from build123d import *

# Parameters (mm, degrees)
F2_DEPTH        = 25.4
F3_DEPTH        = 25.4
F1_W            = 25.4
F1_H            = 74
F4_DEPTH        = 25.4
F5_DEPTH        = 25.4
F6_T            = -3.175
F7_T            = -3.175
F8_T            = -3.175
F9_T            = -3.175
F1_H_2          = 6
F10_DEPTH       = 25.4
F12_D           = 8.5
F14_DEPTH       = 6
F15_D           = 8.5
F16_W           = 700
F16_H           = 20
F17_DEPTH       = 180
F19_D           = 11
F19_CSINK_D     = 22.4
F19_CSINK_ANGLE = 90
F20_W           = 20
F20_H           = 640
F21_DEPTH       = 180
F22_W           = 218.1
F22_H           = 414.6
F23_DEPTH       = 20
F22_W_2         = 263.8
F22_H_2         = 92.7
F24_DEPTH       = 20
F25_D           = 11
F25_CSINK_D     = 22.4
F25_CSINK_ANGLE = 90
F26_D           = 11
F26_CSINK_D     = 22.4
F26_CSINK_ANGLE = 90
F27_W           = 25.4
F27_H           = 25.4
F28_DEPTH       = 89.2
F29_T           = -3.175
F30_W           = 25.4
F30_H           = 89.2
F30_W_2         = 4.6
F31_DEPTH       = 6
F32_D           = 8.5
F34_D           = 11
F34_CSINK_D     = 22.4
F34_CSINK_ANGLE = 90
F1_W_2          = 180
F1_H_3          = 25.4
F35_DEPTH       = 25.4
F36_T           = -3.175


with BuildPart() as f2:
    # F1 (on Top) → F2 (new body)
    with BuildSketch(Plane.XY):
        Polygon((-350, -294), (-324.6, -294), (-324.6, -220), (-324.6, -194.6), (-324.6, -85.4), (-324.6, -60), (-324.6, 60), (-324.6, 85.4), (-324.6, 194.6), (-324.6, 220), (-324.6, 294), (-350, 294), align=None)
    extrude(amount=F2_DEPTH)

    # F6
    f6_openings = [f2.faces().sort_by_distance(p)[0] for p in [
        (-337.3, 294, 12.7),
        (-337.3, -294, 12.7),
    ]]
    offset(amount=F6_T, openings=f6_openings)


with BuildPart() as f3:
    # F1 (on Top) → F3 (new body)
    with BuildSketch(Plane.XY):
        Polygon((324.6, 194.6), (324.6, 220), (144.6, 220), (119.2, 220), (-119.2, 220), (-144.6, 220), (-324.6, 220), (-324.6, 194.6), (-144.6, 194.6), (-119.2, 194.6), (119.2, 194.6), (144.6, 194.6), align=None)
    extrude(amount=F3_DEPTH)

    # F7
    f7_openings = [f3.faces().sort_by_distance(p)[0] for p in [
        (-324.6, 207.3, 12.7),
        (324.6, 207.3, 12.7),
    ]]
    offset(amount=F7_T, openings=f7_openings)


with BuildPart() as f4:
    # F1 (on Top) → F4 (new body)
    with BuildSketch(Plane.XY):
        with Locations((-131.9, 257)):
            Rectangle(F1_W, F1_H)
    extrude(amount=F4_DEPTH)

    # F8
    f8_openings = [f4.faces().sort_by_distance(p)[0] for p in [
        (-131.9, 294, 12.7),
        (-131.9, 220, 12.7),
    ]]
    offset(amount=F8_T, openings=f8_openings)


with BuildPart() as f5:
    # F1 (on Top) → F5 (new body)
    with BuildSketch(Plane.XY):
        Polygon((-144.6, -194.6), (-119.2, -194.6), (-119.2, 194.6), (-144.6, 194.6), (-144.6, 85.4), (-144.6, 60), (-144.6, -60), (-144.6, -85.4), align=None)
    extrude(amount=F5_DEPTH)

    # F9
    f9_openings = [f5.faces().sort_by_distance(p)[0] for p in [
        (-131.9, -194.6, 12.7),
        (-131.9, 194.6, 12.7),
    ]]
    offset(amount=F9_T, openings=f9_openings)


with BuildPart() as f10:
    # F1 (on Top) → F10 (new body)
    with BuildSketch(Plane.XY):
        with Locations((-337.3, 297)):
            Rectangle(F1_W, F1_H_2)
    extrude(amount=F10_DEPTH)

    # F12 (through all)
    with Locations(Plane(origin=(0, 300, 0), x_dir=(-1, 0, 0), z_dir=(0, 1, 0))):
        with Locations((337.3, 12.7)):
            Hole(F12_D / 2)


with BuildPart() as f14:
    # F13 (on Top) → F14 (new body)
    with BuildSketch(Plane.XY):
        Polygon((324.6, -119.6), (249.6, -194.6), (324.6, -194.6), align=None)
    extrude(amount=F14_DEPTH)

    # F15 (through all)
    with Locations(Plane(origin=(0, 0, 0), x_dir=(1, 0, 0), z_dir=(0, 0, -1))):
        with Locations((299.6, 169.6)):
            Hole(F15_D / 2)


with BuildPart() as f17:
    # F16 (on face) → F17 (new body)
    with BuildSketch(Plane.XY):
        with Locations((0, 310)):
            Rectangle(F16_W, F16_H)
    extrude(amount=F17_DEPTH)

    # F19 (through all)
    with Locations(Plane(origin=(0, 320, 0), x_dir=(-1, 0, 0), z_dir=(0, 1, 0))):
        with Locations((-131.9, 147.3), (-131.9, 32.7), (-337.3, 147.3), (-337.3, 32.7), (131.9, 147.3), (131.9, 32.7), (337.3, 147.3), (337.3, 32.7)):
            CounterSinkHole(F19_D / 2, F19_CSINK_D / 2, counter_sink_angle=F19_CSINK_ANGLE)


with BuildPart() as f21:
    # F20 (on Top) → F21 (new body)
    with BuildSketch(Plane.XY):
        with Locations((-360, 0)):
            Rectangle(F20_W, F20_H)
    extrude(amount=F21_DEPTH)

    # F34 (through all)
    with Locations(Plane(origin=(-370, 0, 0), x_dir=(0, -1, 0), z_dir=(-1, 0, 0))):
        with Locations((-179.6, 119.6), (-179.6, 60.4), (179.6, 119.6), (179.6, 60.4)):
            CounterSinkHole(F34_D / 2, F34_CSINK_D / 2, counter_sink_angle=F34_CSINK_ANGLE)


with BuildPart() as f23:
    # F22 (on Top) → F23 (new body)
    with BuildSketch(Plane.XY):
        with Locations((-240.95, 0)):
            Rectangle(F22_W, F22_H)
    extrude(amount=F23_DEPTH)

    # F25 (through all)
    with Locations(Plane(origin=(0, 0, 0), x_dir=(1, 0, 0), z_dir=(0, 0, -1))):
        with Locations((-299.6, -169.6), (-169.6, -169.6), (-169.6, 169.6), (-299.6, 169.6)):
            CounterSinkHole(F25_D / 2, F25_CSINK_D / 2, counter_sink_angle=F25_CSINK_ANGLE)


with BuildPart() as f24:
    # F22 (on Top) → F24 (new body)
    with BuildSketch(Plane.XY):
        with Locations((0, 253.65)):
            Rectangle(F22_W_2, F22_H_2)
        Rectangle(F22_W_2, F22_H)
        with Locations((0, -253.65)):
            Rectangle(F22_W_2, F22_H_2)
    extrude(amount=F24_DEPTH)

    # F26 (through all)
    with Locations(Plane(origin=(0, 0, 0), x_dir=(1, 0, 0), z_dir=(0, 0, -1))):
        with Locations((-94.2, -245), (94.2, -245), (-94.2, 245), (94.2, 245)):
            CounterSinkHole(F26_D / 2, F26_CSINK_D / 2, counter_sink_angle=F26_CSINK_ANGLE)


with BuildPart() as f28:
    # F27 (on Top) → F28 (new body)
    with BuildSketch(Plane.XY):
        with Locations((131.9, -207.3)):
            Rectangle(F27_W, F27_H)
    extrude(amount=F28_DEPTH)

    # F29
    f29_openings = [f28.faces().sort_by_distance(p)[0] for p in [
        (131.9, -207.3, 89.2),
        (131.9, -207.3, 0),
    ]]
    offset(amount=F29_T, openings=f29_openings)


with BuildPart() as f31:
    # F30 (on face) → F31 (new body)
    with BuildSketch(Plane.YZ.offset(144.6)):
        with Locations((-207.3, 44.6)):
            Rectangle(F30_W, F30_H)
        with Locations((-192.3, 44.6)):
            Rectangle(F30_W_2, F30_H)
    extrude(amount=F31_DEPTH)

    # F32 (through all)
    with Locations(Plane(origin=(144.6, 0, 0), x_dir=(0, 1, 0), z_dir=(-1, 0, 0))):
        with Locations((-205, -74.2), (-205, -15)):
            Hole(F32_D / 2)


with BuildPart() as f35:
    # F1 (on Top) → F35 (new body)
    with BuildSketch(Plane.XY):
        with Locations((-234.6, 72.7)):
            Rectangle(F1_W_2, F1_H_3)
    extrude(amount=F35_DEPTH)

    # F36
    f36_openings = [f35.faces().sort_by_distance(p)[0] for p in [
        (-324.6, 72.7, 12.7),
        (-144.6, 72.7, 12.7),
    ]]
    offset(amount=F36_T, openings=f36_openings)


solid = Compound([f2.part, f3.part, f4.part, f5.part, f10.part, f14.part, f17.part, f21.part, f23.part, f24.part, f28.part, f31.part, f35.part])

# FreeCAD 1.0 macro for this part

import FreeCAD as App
import Part
import Sketcher

V = App.Vector
Q = App.Units.Quantity


def faces_at(feature, points):
    """Names of the faces that lie closest to the given points."""
    faces = feature.Shape.Faces
    near = lambda p: min(range(len(faces)), key=lambda i: faces[i].distToShape(Part.Vertex(*p))[0])
    return sorted({f"Face{near(p) + 1}" for p in points})

doc = App.newDocument("Part")
params = doc.addObject("Spreadsheet::Sheet", "Params")
for row, (alias, value) in enumerate([
    ("sketch1_height", "588 mm"),
    ("sketch1_width", "25.4 mm"),
    ("pad1_length", "25.4 mm"),
    ("thickness_wall", "3.175 mm"),
    ("sketch2_width", "649.2 mm"),
    ("sketch2_height", "25.4 mm"),
    ("pad2_length", "25.4 mm"),
    ("thickness2_wall", "3.175 mm"),
    ("sketch3_height", "74 mm"),
    ("sketch3_width", "25.4 mm"),
    ("pad3_length", "25.4 mm"),
    ("thickness3_wall", "3.175 mm"),
    ("sketch4_width", "25.4 mm"),
    ("sketch4_height", "389.2 mm"),
    ("pad4_length", "25.4 mm"),
    ("thickness4_wall", "3.175 mm"),
    ("sketch5_height", "6 mm"),
    ("sketch5_width", "25.4 mm"),
    ("pad5_length", "25.4 mm"),
    ("sketch6_diameter", "8.5 mm"),
    ("hole_diameter", "8.5 mm"),
    ("sketch7_width", "75 mm"),
    ("pad6_length", "6 mm"),
    ("sketch8_diameter", "8.5 mm"),
    ("hole2_diameter", "8.5 mm"),
    ("sketch9_width", "700 mm"),
    ("sketch9_height", "20 mm"),
    ("pad7_length", "180 mm"),
    ("sketch10_diameter", "11 mm"),
    ("hole3_diameter", "11 mm"),
    ("hole3_csink_diameter", "22.4 mm"),
    ("sketch11_width", "20 mm"),
    ("sketch11_height", "640 mm"),
    ("pad8_length", "180 mm"),
    ("sketch12_diameter", "11 mm"),
    ("hole4_diameter", "11 mm"),
    ("hole4_csink_diameter", "22.4 mm"),
    ("sketch13_width", "218.1 mm"),
    ("sketch13_height", "414.6 mm"),
    ("pad9_length", "20 mm"),
    ("sketch14_diameter", "11 mm"),
    ("hole5_diameter", "11 mm"),
    ("hole5_csink_diameter", "22.4 mm"),
    ("sketch15_height", "600 mm"),
    ("sketch15_width", "263.8 mm"),
    ("pad10_length", "20 mm"),
    ("sketch16_diameter", "11 mm"),
    ("hole6_diameter", "11 mm"),
    ("hole6_csink_diameter", "22.4 mm"),
    ("sketch17_width", "25.4 mm"),
    ("pad11_length", "89.2 mm"),
    ("thickness5_wall", "3.175 mm"),
    ("sketch18_width", "30 mm"),
    ("sketch18_height", "89.2 mm"),
    ("pad12_length", "6 mm"),
    ("sketch19_diameter", "8.5 mm"),
    ("hole7_diameter", "8.5 mm"),
    ("sketch20_width", "180 mm"),
    ("sketch20_height", "25.4 mm"),
    ("pad13_length", "25.4 mm"),
    ("thickness6_wall", "3.175 mm"),
], start=1):
    params.set(f"A{row}", alias)
    params.set(f"B{row}", "=" + value)
    params.setAlias(f"B{row}", alias)

body = doc.addObject("PartDesign::Body", "Body")

sketch1 = body.newObject("Sketcher::SketchObject", "Sketch")
sketch1.AttachmentSupport = (doc.getObject("XY_Plane"), [""])
sketch1.MapMode = "FlatFace"
sketch1.addGeometry([
    Part.LineSegment(V(-350, -294, 0), V(-325, -294, 0)),
    Part.LineSegment(V(-325, -294, 0), V(-325, 294, 0)),
    Part.LineSegment(V(-325, 294, 0), V(-350, 294, 0)),
    Part.LineSegment(V(-350, 294, 0), V(-350, -294, 0)),
], False)
sketch1.addConstraint([
    Sketcher.Constraint("Coincident", 0, 2, 1, 1),
    Sketcher.Constraint("Coincident", 1, 2, 2, 1),
    Sketcher.Constraint("Coincident", 2, 2, 3, 1),
    Sketcher.Constraint("Coincident", 3, 2, 0, 1),
    Sketcher.Constraint("Horizontal", 0),
    Sketcher.Constraint("Vertical", 1),
    Sketcher.Constraint("Horizontal", 2),
    Sketcher.Constraint("Vertical", 3),
    Sketcher.Constraint("DistanceY", 1, 1, 1, 2, Q("588 mm")),
    Sketcher.Constraint("DistanceX", 0, 1, 0, 2, Q("25.4 mm")),
    Sketcher.Constraint("DistanceY", 0, 2, -1, 1, Q("294 mm")),
    Sketcher.Constraint("DistanceX", 2, 2, -1, 1, Q("350 mm")),
])
sketch1.setExpression("Constraints[8]", "Params.sketch1_height")
sketch1.setExpression("Constraints[9]", "Params.sketch1_width")
pad1 = body.newObject("PartDesign::Pad", "Pad")
pad1.Profile = sketch1
pad1.setExpression("Length", "Params.pad1_length")
doc.recompute()

thickness = body.newObject("PartDesign::Thickness", "Thickness")
thickness.Base = (pad1, faces_at(pad1, [(-337.3, 294, 12.7), (-337.3, -294, 12.7)]))
thickness.setExpression("Value", "Params.thickness_wall")
thickness.Reversed = True
thickness.Join = "Arc"
body2 = doc.addObject("PartDesign::Body", "Body001")

sketch2 = body2.newObject("Sketcher::SketchObject", "Sketch001")
sketch2.AttachmentSupport = (doc.getObject("XY_Plane001"), [""])
sketch2.MapMode = "FlatFace"
sketch2.addGeometry([
    Part.LineSegment(V(325, 195, 0), V(325, 220, 0)),
    Part.LineSegment(V(325, 220, 0), V(-325, 220, 0)),
    Part.LineSegment(V(-325, 220, 0), V(-325, 195, 0)),
    Part.LineSegment(V(-325, 195, 0), V(325, 195, 0)),
], False)
sketch2.addConstraint([
    Sketcher.Constraint("Coincident", 0, 2, 1, 1),
    Sketcher.Constraint("Coincident", 1, 2, 2, 1),
    Sketcher.Constraint("Coincident", 2, 2, 3, 1),
    Sketcher.Constraint("Coincident", 3, 2, 0, 1),
    Sketcher.Constraint("Vertical", 0),
    Sketcher.Constraint("Horizontal", 1),
    Sketcher.Constraint("Vertical", 2),
    Sketcher.Constraint("Horizontal", 3),
    Sketcher.Constraint("DistanceX", 1, 2, 1, 1, Q("649.2 mm")),
    Sketcher.Constraint("DistanceY", 0, 1, 0, 2, Q("25.4 mm")),
    Sketcher.Constraint("DistanceY", -1, 1, 0, 2, Q("220 mm")),
    Sketcher.Constraint("DistanceX", -1, 1, 0, 2, Q("324.6 mm")),
])
sketch2.setExpression("Constraints[8]", "Params.sketch2_width")
sketch2.setExpression("Constraints[9]", "Params.sketch2_height")
pad2 = body2.newObject("PartDesign::Pad", "Pad001")
pad2.Profile = sketch2
pad2.setExpression("Length", "Params.pad2_length")
doc.recompute()

thickness2 = body2.newObject("PartDesign::Thickness", "Thickness001")
thickness2.Base = (pad2, faces_at(pad2, [(-324.6, 207.3, 12.7), (324.6, 207.3, 12.7)]))
thickness2.setExpression("Value", "Params.thickness2_wall")
thickness2.Reversed = True
thickness2.Join = "Arc"
body3 = doc.addObject("PartDesign::Body", "Body002")

sketch3 = body3.newObject("Sketcher::SketchObject", "Sketch002")
sketch3.AttachmentSupport = (doc.getObject("XY_Plane002"), [""])
sketch3.MapMode = "FlatFace"
sketch3.addGeometry([
    Part.LineSegment(V(-145, 294, 0), V(-145, 220, 0)),
    Part.LineSegment(V(-145, 220, 0), V(-119, 220, 0)),
    Part.LineSegment(V(-119, 220, 0), V(-119, 294, 0)),
    Part.LineSegment(V(-119, 294, 0), V(-145, 294, 0)),
], False)
sketch3.addConstraint([
    Sketcher.Constraint("Coincident", 0, 2, 1, 1),
    Sketcher.Constraint("Coincident", 1, 2, 2, 1),
    Sketcher.Constraint("Coincident", 2, 2, 3, 1),
    Sketcher.Constraint("Coincident", 3, 2, 0, 1),
    Sketcher.Constraint("Vertical", 0),
    Sketcher.Constraint("Horizontal", 1),
    Sketcher.Constraint("Vertical", 2),
    Sketcher.Constraint("Horizontal", 3),
    Sketcher.Constraint("DistanceY", 0, 2, 0, 1, Q("74 mm")),
    Sketcher.Constraint("DistanceX", 1, 1, 1, 2, Q("25.4 mm")),
    Sketcher.Constraint("DistanceY", -1, 1, 0, 2, Q("220 mm")),
    Sketcher.Constraint("DistanceX", 0, 2, -1, 1, Q("144.6 mm")),
])
sketch3.setExpression("Constraints[8]", "Params.sketch3_height")
sketch3.setExpression("Constraints[9]", "Params.sketch3_width")
pad3 = body3.newObject("PartDesign::Pad", "Pad002")
pad3.Profile = sketch3
pad3.setExpression("Length", "Params.pad3_length")
doc.recompute()

thickness3 = body3.newObject("PartDesign::Thickness", "Thickness002")
thickness3.Base = (pad3, faces_at(pad3, [(-131.9, 294, 12.7), (-131.9, 220, 12.7)]))
thickness3.setExpression("Value", "Params.thickness3_wall")
thickness3.Reversed = True
thickness3.Join = "Arc"
body4 = doc.addObject("PartDesign::Body", "Body003")

sketch4 = body4.newObject("Sketcher::SketchObject", "Sketch003")
sketch4.AttachmentSupport = (doc.getObject("XY_Plane003"), [""])
sketch4.MapMode = "FlatFace"
sketch4.addGeometry([
    Part.LineSegment(V(-145, -195, 0), V(-119, -195, 0)),
    Part.LineSegment(V(-119, -195, 0), V(-119, 195, 0)),
    Part.LineSegment(V(-119, 195, 0), V(-145, 195, 0)),
    Part.LineSegment(V(-145, 195, 0), V(-145, -195, 0)),
], False)
sketch4.addConstraint([
    Sketcher.Constraint("Coincident", 0, 2, 1, 1),
    Sketcher.Constraint("Coincident", 1, 2, 2, 1),
    Sketcher.Constraint("Coincident", 2, 2, 3, 1),
    Sketcher.Constraint("Coincident", 3, 2, 0, 1),
    Sketcher.Constraint("Horizontal", 0),
    Sketcher.Constraint("Vertical", 1),
    Sketcher.Constraint("Horizontal", 2),
    Sketcher.Constraint("Vertical", 3),
    Sketcher.Constraint("DistanceX", 0, 1, 0, 2, Q("25.4 mm")),
    Sketcher.Constraint("DistanceY", 1, 1, 1, 2, Q("389.2 mm")),
    Sketcher.Constraint("DistanceX", 0, 2, -1, 1, Q("119.2 mm")),
    Sketcher.Constraint("DistanceY", 0, 2, -1, 1, Q("194.6 mm")),
])
sketch4.setExpression("Constraints[8]", "Params.sketch4_width")
sketch4.setExpression("Constraints[9]", "Params.sketch4_height")
pad4 = body4.newObject("PartDesign::Pad", "Pad003")
pad4.Profile = sketch4
pad4.setExpression("Length", "Params.pad4_length")
doc.recompute()

thickness4 = body4.newObject("PartDesign::Thickness", "Thickness003")
thickness4.Base = (pad4, faces_at(pad4, [(-131.9, -194.6, 12.7), (-131.9, 194.6, 12.7)]))
thickness4.setExpression("Value", "Params.thickness4_wall")
thickness4.Reversed = True
thickness4.Join = "Arc"
body5 = doc.addObject("PartDesign::Body", "Body004")

sketch5 = body5.newObject("Sketcher::SketchObject", "Sketch004")
sketch5.AttachmentSupport = (doc.getObject("XY_Plane004"), [""])
sketch5.MapMode = "FlatFace"
sketch5.addGeometry([
    Part.LineSegment(V(-350, 300, 0), V(-350, 294, 0)),
    Part.LineSegment(V(-350, 294, 0), V(-325, 294, 0)),
    Part.LineSegment(V(-325, 294, 0), V(-325, 300, 0)),
    Part.LineSegment(V(-325, 300, 0), V(-350, 300, 0)),
], False)
sketch5.addConstraint([
    Sketcher.Constraint("Coincident", 0, 2, 1, 1),
    Sketcher.Constraint("Coincident", 1, 2, 2, 1),
    Sketcher.Constraint("Coincident", 2, 2, 3, 1),
    Sketcher.Constraint("Coincident", 3, 2, 0, 1),
    Sketcher.Constraint("Vertical", 0),
    Sketcher.Constraint("Horizontal", 1),
    Sketcher.Constraint("Vertical", 2),
    Sketcher.Constraint("Horizontal", 3),
    Sketcher.Constraint("DistanceY", 0, 2, 0, 1, Q("6 mm")),
    Sketcher.Constraint("DistanceX", 1, 1, 1, 2, Q("25.4 mm")),
    Sketcher.Constraint("DistanceX", 0, 2, -1, 1, Q("350 mm")),
    Sketcher.Constraint("DistanceY", -1, 1, 0, 2, Q("294 mm")),
])
sketch5.setExpression("Constraints[8]", "Params.sketch5_height")
sketch5.setExpression("Constraints[9]", "Params.sketch5_width")
pad5 = body5.newObject("PartDesign::Pad", "Pad004")
pad5.Profile = sketch5
pad5.setExpression("Length", "Params.pad5_length")

sketch6 = body5.newObject("Sketcher::SketchObject", "Sketch005")
sketch6.AttachmentSupport = (doc.getObject("XZ_Plane004"), [""])
sketch6.MapMode = "FlatFace"
sketch6.AttachmentOffset = App.Placement(V(0, 0, -300), App.Rotation())
sketch6.addGeometry(Part.Circle(V(-337.3, 12.7, 0), V(0, 0, 1), 4.2), False)
sketch6.addConstraint([
    Sketcher.Constraint("Diameter", 0, Q("8.5 mm")),
    Sketcher.Constraint("DistanceX", 0, 3, -1, 1, Q("337.3 mm")),
    Sketcher.Constraint("DistanceY", -1, 1, 0, 3, Q("12.7 mm")),
])
sketch6.setExpression("Constraints[0]", "Params.sketch6_diameter")
doc.recompute()
hole = body5.newObject("PartDesign::Hole", "Hole")
hole.Profile = sketch6
hole.ThreadType = "None"
hole.setExpression("Diameter", "Params.hole_diameter")
hole.DepthType = "ThroughAll"
hole.Reversed = True
body6 = doc.addObject("PartDesign::Body", "Body005")

sketch7 = body6.newObject("Sketcher::SketchObject", "Sketch006")
sketch7.AttachmentSupport = (doc.getObject("XY_Plane005"), [""])
sketch7.MapMode = "FlatFace"
sketch7.addGeometry([
    Part.LineSegment(V(325, -120, 0), V(250, -195, 0)),
    Part.LineSegment(V(250, -195, 0), V(325, -195, 0)),
    Part.LineSegment(V(325, -195, 0), V(325, -120, 0)),
], False)
sketch7.addConstraint([
    Sketcher.Constraint("Coincident", 0, 2, 1, 1),
    Sketcher.Constraint("Coincident", 1, 2, 2, 1),
    Sketcher.Constraint("Coincident", 2, 2, 0, 1),
    Sketcher.Constraint("Horizontal", 1),
    Sketcher.Constraint("Vertical", 2),
    Sketcher.Constraint("Equal", 1, 2),
    Sketcher.Constraint("DistanceX", 1, 1, 1, 2, Q("75 mm")),
    Sketcher.Constraint("DistanceX", -1, 1, 0, 2, Q("249.6 mm")),
    Sketcher.Constraint("DistanceY", 0, 2, -1, 1, Q("194.6 mm")),
])
sketch7.setExpression("Constraints[6]", "Params.sketch7_width")
pad6 = body6.newObject("PartDesign::Pad", "Pad005")
pad6.Profile = sketch7
pad6.setExpression("Length", "Params.pad6_length")

sketch8 = body6.newObject("Sketcher::SketchObject", "Sketch007")
sketch8.AttachmentSupport = (doc.getObject("XY_Plane005"), [""])
sketch8.MapMode = "FlatFace"
sketch8.addGeometry(Part.Circle(V(299.6, -169.6, 0), V(0, 0, 1), 4.2), False)
sketch8.addConstraint([
    Sketcher.Constraint("Diameter", 0, Q("8.5 mm")),
    Sketcher.Constraint("DistanceX", -1, 1, 0, 3, Q("299.6 mm")),
    Sketcher.Constraint("DistanceY", 0, 3, -1, 1, Q("169.6 mm")),
])
sketch8.setExpression("Constraints[0]", "Params.sketch8_diameter")
doc.recompute()
hole2 = body6.newObject("PartDesign::Hole", "Hole001")
hole2.Profile = sketch8
hole2.ThreadType = "None"
hole2.setExpression("Diameter", "Params.hole2_diameter")
hole2.DepthType = "ThroughAll"
hole2.Reversed = True
body7 = doc.addObject("PartDesign::Body", "Body006")

sketch9 = body7.newObject("Sketcher::SketchObject", "Sketch008")
sketch9.AttachmentSupport = (doc.getObject("XY_Plane006"), [""])
sketch9.MapMode = "FlatFace"
sketch9.addGeometry([
    Part.LineSegment(V(-350, 320, 0), V(-350, 300, 0)),
    Part.LineSegment(V(-350, 300, 0), V(350, 300, 0)),
    Part.LineSegment(V(350, 300, 0), V(350, 320, 0)),
    Part.LineSegment(V(350, 320, 0), V(-350, 320, 0)),
], False)
sketch9.addConstraint([
    Sketcher.Constraint("Coincident", 0, 2, 1, 1),
    Sketcher.Constraint("Coincident", 1, 2, 2, 1),
    Sketcher.Constraint("Coincident", 2, 2, 3, 1),
    Sketcher.Constraint("Coincident", 3, 2, 0, 1),
    Sketcher.Constraint("Vertical", 0),
    Sketcher.Constraint("Horizontal", 1),
    Sketcher.Constraint("Vertical", 2),
    Sketcher.Constraint("Horizontal", 3),
    Sketcher.Constraint("DistanceX", 1, 1, 1, 2, Q("700 mm")),
    Sketcher.Constraint("DistanceY", 0, 2, 0, 1, Q("20 mm")),
    Sketcher.Constraint("DistanceX", 0, 2, -1, 1, Q("350 mm")),
    Sketcher.Constraint("DistanceY", -1, 1, 0, 2, Q("300 mm")),
])
sketch9.setExpression("Constraints[8]", "Params.sketch9_width")
sketch9.setExpression("Constraints[9]", "Params.sketch9_height")
pad7 = body7.newObject("PartDesign::Pad", "Pad006")
pad7.Profile = sketch9
pad7.setExpression("Length", "Params.pad7_length")

sketch10 = body7.newObject("Sketcher::SketchObject", "Sketch009")
sketch10.AttachmentSupport = (doc.getObject("XZ_Plane006"), [""])
sketch10.MapMode = "FlatFace"
sketch10.AttachmentOffset = App.Placement(V(0, 0, -320), App.Rotation())
sketch10.addGeometry([
    Part.Circle(V(132, 147, 0), V(0, 0, 1), 6),
    Part.Circle(V(132, 33, 0), V(0, 0, 1), 6),
    Part.Circle(V(337, 147, 0), V(0, 0, 1), 6),
    Part.Circle(V(337, 33, 0), V(0, 0, 1), 6),
    Part.Circle(V(-132, 147, 0), V(0, 0, 1), 6),
    Part.Circle(V(-132, 33, 0), V(0, 0, 1), 6),
    Part.Circle(V(-337, 147, 0), V(0, 0, 1), 6),
    Part.Circle(V(-337, 33, 0), V(0, 0, 1), 6),
], False)
sketch10.addConstraint([
    Sketcher.Constraint("Equal", 0, 1),
    Sketcher.Constraint("Equal", 1, 2),
    Sketcher.Constraint("Equal", 2, 3),
    Sketcher.Constraint("Equal", 3, 4),
    Sketcher.Constraint("Equal", 4, 5),
    Sketcher.Constraint("Equal", 5, 6),
    Sketcher.Constraint("Equal", 6, 7),
    Sketcher.Constraint("Symmetric", 0, 3, 4, 3, -2),
    Sketcher.Constraint("Symmetric", 1, 3, 5, 3, -2),
    Sketcher.Constraint("Symmetric", 2, 3, 6, 3, -2),
    Sketcher.Constraint("Symmetric", 3, 3, 7, 3, -2),
    Sketcher.Constraint("Horizontal", 0, 3, 2, 3),
    Sketcher.Constraint("Horizontal", 1, 3, 3, 3),
    Sketcher.Constraint("Vertical", 0, 3, 1, 3),
    Sketcher.Constraint("Vertical", 2, 3, 3, 3),
    Sketcher.Constraint("Diameter", 0, Q("11 mm")),
    Sketcher.Constraint("DistanceX", -1, 1, 0, 3, Q("131.9 mm")),
    Sketcher.Constraint("DistanceY", -1, 1, 0, 3, Q("147.3 mm")),
    Sketcher.Constraint("DistanceY", -1, 1, 1, 3, Q("32.7 mm")),
    Sketcher.Constraint("DistanceX", -1, 1, 2, 3, Q("337.3 mm")),
])
sketch10.setExpression("Constraints[15]", "Params.sketch10_diameter")
doc.recompute()
hole3 = body7.newObject("PartDesign::Hole", "Hole002")
hole3.Profile = sketch10
hole3.ThreadType = "None"
hole3.setExpression("Diameter", "Params.hole3_diameter")
hole3.DepthType = "ThroughAll"
hole3.HoleCutType = "Countersink"
hole3.setExpression("HoleCutDiameter", "Params.hole3_csink_diameter")
hole3.HoleCutCountersinkAngle = 90
hole3.Reversed = True
body8 = doc.addObject("PartDesign::Body", "Body007")

sketch11 = body8.newObject("Sketcher::SketchObject", "Sketch010")
sketch11.AttachmentSupport = (doc.getObject("XY_Plane007"), [""])
sketch11.MapMode = "FlatFace"
sketch11.addGeometry([
    Part.LineSegment(V(-370, 320, 0), V(-370, -320, 0)),
    Part.LineSegment(V(-370, -320, 0), V(-350, -320, 0)),
    Part.LineSegment(V(-350, -320, 0), V(-350, 320, 0)),
    Part.LineSegment(V(-350, 320, 0), V(-370, 320, 0)),
], False)
sketch11.addConstraint([
    Sketcher.Constraint("Coincident", 0, 2, 1, 1),
    Sketcher.Constraint("Coincident", 1, 2, 2, 1),
    Sketcher.Constraint("Coincident", 2, 2, 3, 1),
    Sketcher.Constraint("Coincident", 3, 2, 0, 1),
    Sketcher.Constraint("Vertical", 0),
    Sketcher.Constraint("Horizontal", 1),
    Sketcher.Constraint("Vertical", 2),
    Sketcher.Constraint("Horizontal", 3),
    Sketcher.Constraint("DistanceX", 1, 1, 1, 2, Q("20 mm")),
    Sketcher.Constraint("DistanceY", 0, 2, 0, 1, Q("640 mm")),
    Sketcher.Constraint("DistanceX", 0, 2, -1, 1, Q("370 mm")),
    Sketcher.Constraint("DistanceY", 0, 2, -1, 1, Q("320 mm")),
])
sketch11.setExpression("Constraints[8]", "Params.sketch11_width")
sketch11.setExpression("Constraints[9]", "Params.sketch11_height")
pad8 = body8.newObject("PartDesign::Pad", "Pad007")
pad8.Profile = sketch11
pad8.setExpression("Length", "Params.pad8_length")

sketch12 = body8.newObject("Sketcher::SketchObject", "Sketch011")
sketch12.AttachmentSupport = (doc.getObject("YZ_Plane007"), [""])
sketch12.MapMode = "FlatFace"
sketch12.AttachmentOffset = App.Placement(V(0, 0, -370), App.Rotation())
sketch12.addGeometry([
    Part.Circle(V(180, 120, 0), V(0, 0, 1), 6),
    Part.Circle(V(180, 60, 0), V(0, 0, 1), 6),
    Part.Circle(V(-180, 120, 0), V(0, 0, 1), 6),
    Part.Circle(V(-180, 60, 0), V(0, 0, 1), 6),
], False)
sketch12.addConstraint([
    Sketcher.Constraint("Equal", 0, 1),
    Sketcher.Constraint("Equal", 1, 2),
    Sketcher.Constraint("Equal", 2, 3),
    Sketcher.Constraint("Symmetric", 0, 3, 2, 3, -2),
    Sketcher.Constraint("Symmetric", 1, 3, 3, 3, -2),
    Sketcher.Constraint("Vertical", 0, 3, 1, 3),
    Sketcher.Constraint("Diameter", 0, Q("11 mm")),
    Sketcher.Constraint("DistanceX", -1, 1, 0, 3, Q("179.6 mm")),
    Sketcher.Constraint("DistanceY", -1, 1, 0, 3, Q("119.6 mm")),
    Sketcher.Constraint("DistanceY", -1, 1, 1, 3, Q("60.4 mm")),
])
sketch12.setExpression("Constraints[6]", "Params.sketch12_diameter")
doc.recompute()
hole4 = body8.newObject("PartDesign::Hole", "Hole003")
hole4.Profile = sketch12
hole4.ThreadType = "None"
hole4.setExpression("Diameter", "Params.hole4_diameter")
hole4.DepthType = "ThroughAll"
hole4.HoleCutType = "Countersink"
hole4.setExpression("HoleCutDiameter", "Params.hole4_csink_diameter")
hole4.HoleCutCountersinkAngle = 90
hole4.Reversed = True
body9 = doc.addObject("PartDesign::Body", "Body008")

sketch13 = body9.newObject("Sketcher::SketchObject", "Sketch012")
sketch13.AttachmentSupport = (doc.getObject("XY_Plane008"), [""])
sketch13.MapMode = "FlatFace"
sketch13.addGeometry([
    Part.LineSegment(V(-350, 207, 0), V(-350, -207, 0)),
    Part.LineSegment(V(-350, -207, 0), V(-132, -207, 0)),
    Part.LineSegment(V(-132, -207, 0), V(-132, 207, 0)),
    Part.LineSegment(V(-132, 207, 0), V(-350, 207, 0)),
], False)
sketch13.addConstraint([
    Sketcher.Constraint("Coincident", 0, 2, 1, 1),
    Sketcher.Constraint("Coincident", 1, 2, 2, 1),
    Sketcher.Constraint("Coincident", 2, 2, 3, 1),
    Sketcher.Constraint("Coincident", 3, 2, 0, 1),
    Sketcher.Constraint("Vertical", 0),
    Sketcher.Constraint("Horizontal", 1),
    Sketcher.Constraint("Vertical", 2),
    Sketcher.Constraint("Horizontal", 3),
    Sketcher.Constraint("DistanceX", 1, 1, 1, 2, Q("218.1 mm")),
    Sketcher.Constraint("DistanceY", 0, 2, 0, 1, Q("414.6 mm")),
    Sketcher.Constraint("DistanceX", 0, 2, -1, 1, Q("350 mm")),
    Sketcher.Constraint("DistanceY", 0, 2, -1, 1, Q("207.3 mm")),
])
sketch13.setExpression("Constraints[8]", "Params.sketch13_width")
sketch13.setExpression("Constraints[9]", "Params.sketch13_height")
pad9 = body9.newObject("PartDesign::Pad", "Pad008")
pad9.Profile = sketch13
pad9.setExpression("Length", "Params.pad9_length")

sketch14 = body9.newObject("Sketcher::SketchObject", "Sketch013")
sketch14.AttachmentSupport = (doc.getObject("XY_Plane008"), [""])
sketch14.MapMode = "FlatFace"
sketch14.addGeometry([
    Part.Circle(V(-300, 170, 0), V(0, 0, 1), 6),
    Part.Circle(V(-170, 170, 0), V(0, 0, 1), 6),
    Part.Circle(V(-170, -170, 0), V(0, 0, 1), 6),
    Part.Circle(V(-300, -170, 0), V(0, 0, 1), 6),
], False)
sketch14.addConstraint([
    Sketcher.Constraint("Equal", 0, 1),
    Sketcher.Constraint("Equal", 1, 2),
    Sketcher.Constraint("Equal", 2, 3),
    Sketcher.Constraint("Symmetric", 1, 3, 2, 3, -1),
    Sketcher.Constraint("Symmetric", 0, 3, 3, 3, -1),
    Sketcher.Constraint("Horizontal", 0, 3, 1, 3),
    Sketcher.Constraint("Diameter", 0, Q("11 mm")),
    Sketcher.Constraint("DistanceX", 0, 3, 1, 3, Q("130 mm")),
    Sketcher.Constraint("DistanceX", 0, 3, -1, 1, Q("299.6 mm")),
    Sketcher.Constraint("DistanceY", -1, 1, 0, 3, Q("169.6 mm")),
])
sketch14.setExpression("Constraints[6]", "Params.sketch14_diameter")
doc.recompute()
hole5 = body9.newObject("PartDesign::Hole", "Hole004")
hole5.Profile = sketch14
hole5.ThreadType = "None"
hole5.setExpression("Diameter", "Params.hole5_diameter")
hole5.DepthType = "ThroughAll"
hole5.HoleCutType = "Countersink"
hole5.setExpression("HoleCutDiameter", "Params.hole5_csink_diameter")
hole5.HoleCutCountersinkAngle = 90
hole5.Reversed = True
body10 = doc.addObject("PartDesign::Body", "Body009")

sketch15 = body10.newObject("Sketcher::SketchObject", "Sketch014")
sketch15.AttachmentSupport = (doc.getObject("XY_Plane009"), [""])
sketch15.MapMode = "FlatFace"
sketch15.addGeometry([
    Part.LineSegment(V(-132, 300, 0), V(-132, -300, 0)),
    Part.LineSegment(V(-132, -300, 0), V(132, -300, 0)),
    Part.LineSegment(V(132, -300, 0), V(132, 300, 0)),
    Part.LineSegment(V(132, 300, 0), V(-132, 300, 0)),
], False)
sketch15.addConstraint([
    Sketcher.Constraint("Coincident", 0, 2, 1, 1),
    Sketcher.Constraint("Coincident", 1, 2, 2, 1),
    Sketcher.Constraint("Coincident", 2, 2, 3, 1),
    Sketcher.Constraint("Coincident", 3, 2, 0, 1),
    Sketcher.Constraint("Vertical", 0),
    Sketcher.Constraint("Horizontal", 1),
    Sketcher.Constraint("Vertical", 2),
    Sketcher.Constraint("Horizontal", 3),
    Sketcher.Constraint("Symmetric", 0, 2, 2, 2, -1, 1),
    Sketcher.Constraint("DistanceY", 0, 2, 0, 1, Q("600 mm")),
    Sketcher.Constraint("DistanceX", 1, 1, 1, 2, Q("263.8 mm")),
])
sketch15.setExpression("Constraints[9]", "Params.sketch15_height")
sketch15.setExpression("Constraints[10]", "Params.sketch15_width")
pad10 = body10.newObject("PartDesign::Pad", "Pad009")
pad10.Profile = sketch15
pad10.setExpression("Length", "Params.pad10_length")

sketch16 = body10.newObject("Sketcher::SketchObject", "Sketch015")
sketch16.AttachmentSupport = (doc.getObject("XY_Plane009"), [""])
sketch16.MapMode = "FlatFace"
sketch16.addGeometry([
    Part.Circle(V(-94, 245, 0), V(0, 0, 1), 6),
    Part.Circle(V(94, 245, 0), V(0, 0, 1), 6),
    Part.Circle(V(-94, -245, 0), V(0, 0, 1), 6),
    Part.Circle(V(94, -245, 0), V(0, 0, 1), 6),
], False)
sketch16.addConstraint([
    Sketcher.Constraint("Equal", 0, 1),
    Sketcher.Constraint("Equal", 1, 2),
    Sketcher.Constraint("Equal", 2, 3),
    Sketcher.Constraint("Symmetric", 1, 3, 2, 3, -1, 1),
    Sketcher.Constraint("Symmetric", 0, 3, 3, 3, -1, 1),
    Sketcher.Constraint("Symmetric", 0, 3, 1, 3, -2),
    Sketcher.Constraint("Diameter", 0, Q("11 mm")),
    Sketcher.Constraint("DistanceY", -1, 1, 0, 3, Q("245 mm")),
    Sketcher.Constraint("DistanceX", 0, 3, -1, 1, Q("94.2 mm")),
])
sketch16.setExpression("Constraints[6]", "Params.sketch16_diameter")
doc.recompute()
hole6 = body10.newObject("PartDesign::Hole", "Hole005")
hole6.Profile = sketch16
hole6.ThreadType = "None"
hole6.setExpression("Diameter", "Params.hole6_diameter")
hole6.DepthType = "ThroughAll"
hole6.HoleCutType = "Countersink"
hole6.setExpression("HoleCutDiameter", "Params.hole6_csink_diameter")
hole6.HoleCutCountersinkAngle = 90
hole6.Reversed = True
body11 = doc.addObject("PartDesign::Body", "Body010")

sketch17 = body11.newObject("Sketcher::SketchObject", "Sketch016")
sketch17.AttachmentSupport = (doc.getObject("XY_Plane010"), [""])
sketch17.MapMode = "FlatFace"
sketch17.addGeometry([
    Part.LineSegment(V(119, -195, 0), V(119, -220, 0)),
    Part.LineSegment(V(119, -220, 0), V(145, -220, 0)),
    Part.LineSegment(V(145, -220, 0), V(145, -195, 0)),
    Part.LineSegment(V(145, -195, 0), V(119, -195, 0)),
], False)
sketch17.addConstraint([
    Sketcher.Constraint("Coincident", 0, 2, 1, 1),
    Sketcher.Constraint("Coincident", 1, 2, 2, 1),
    Sketcher.Constraint("Coincident", 2, 2, 3, 1),
    Sketcher.Constraint("Coincident", 3, 2, 0, 1),
    Sketcher.Constraint("Vertical", 0),
    Sketcher.Constraint("Horizontal", 1),
    Sketcher.Constraint("Vertical", 2),
    Sketcher.Constraint("Horizontal", 3),
    Sketcher.Constraint("Equal", 3, 0),
    Sketcher.Constraint("DistanceX", 1, 1, 1, 2, Q("25.4 mm")),
    Sketcher.Constraint("DistanceY", 0, 2, -1, 1, Q("220 mm")),
    Sketcher.Constraint("DistanceX", -1, 1, 0, 2, Q("119.2 mm")),
])
sketch17.setExpression("Constraints[9]", "Params.sketch17_width")
pad11 = body11.newObject("PartDesign::Pad", "Pad010")
pad11.Profile = sketch17
pad11.setExpression("Length", "Params.pad11_length")
doc.recompute()

thickness5 = body11.newObject("PartDesign::Thickness", "Thickness004")
thickness5.Base = (pad11, faces_at(pad11, [(131.9, -207.3, 89.2), (131.9, -207.3, 0)]))
thickness5.setExpression("Value", "Params.thickness5_wall")
thickness5.Reversed = True
thickness5.Join = "Arc"
body12 = doc.addObject("PartDesign::Body", "Body011")

sketch18 = body12.newObject("Sketcher::SketchObject", "Sketch017")
sketch18.AttachmentSupport = (doc.getObject("YZ_Plane011"), [""])
sketch18.MapMode = "FlatFace"
sketch18.AttachmentOffset = App.Placement(V(0, 0, 144.6), App.Rotation())
sketch18.addGeometry([
    Part.LineSegment(V(-220, 89, 0), V(-220, 0, 0)),
    Part.LineSegment(V(-220, 0, 0), V(-190, 0, 0)),
    Part.LineSegment(V(-190, 0, 0), V(-190, 89, 0)),
    Part.LineSegment(V(-190, 89, 0), V(-220, 89, 0)),
], False)
sketch18.addConstraint([
    Sketcher.Constraint("Coincident", 0, 2, 1, 1),
    Sketcher.Constraint("Coincident", 1, 2, 2, 1),
    Sketcher.Constraint("Coincident", 2, 2, 3, 1),
    Sketcher.Constraint("Coincident", 3, 2, 0, 1),
    Sketcher.Constraint("Vertical", 0),
    Sketcher.Constraint("Horizontal", 1),
    Sketcher.Constraint("Vertical", 2),
    Sketcher.Constraint("Horizontal", 3),
    Sketcher.Constraint("PointOnObject", 0, 2, -1),
    Sketcher.Constraint("DistanceX", 1, 1, 1, 2, Q("30 mm")),
    Sketcher.Constraint("DistanceY", 0, 2, 0, 1, Q("89.2 mm")),
    Sketcher.Constraint("DistanceX", 0, 2, -1, 1, Q("220 mm")),
])
sketch18.setExpression("Constraints[9]", "Params.sketch18_width")
sketch18.setExpression("Constraints[10]", "Params.sketch18_height")
pad12 = body12.newObject("PartDesign::Pad", "Pad011")
pad12.Profile = sketch18
pad12.setExpression("Length", "Params.pad12_length")

sketch19 = body12.newObject("Sketcher::SketchObject", "Sketch018")
sketch19.AttachmentSupport = (doc.getObject("YZ_Plane011"), [""])
sketch19.MapMode = "FlatFace"
sketch19.AttachmentOffset = App.Placement(V(0, 0, 144.6), App.Rotation())
sketch19.addGeometry([
    Part.Circle(V(-205, 74.2, 0), V(0, 0, 1), 4.2),
    Part.Circle(V(-205, 15, 0), V(0, 0, 1), 4.2),
], False)
sketch19.addConstraint([
    Sketcher.Constraint("Equal", 0, 1),
    Sketcher.Constraint("Vertical", 0, 3, 1, 3),
    Sketcher.Constraint("Diameter", 0, Q("8.5 mm")),
    Sketcher.Constraint("DistanceX", 0, 3, -1, 1, Q("205 mm")),
    Sketcher.Constraint("DistanceY", -1, 1, 1, 3, Q("15 mm")),
    Sketcher.Constraint("DistanceY", -1, 1, 0, 3, Q("74.2 mm")),
])
sketch19.setExpression("Constraints[2]", "Params.sketch19_diameter")
doc.recompute()
hole7 = body12.newObject("PartDesign::Hole", "Hole006")
hole7.Profile = sketch19
hole7.ThreadType = "None"
hole7.setExpression("Diameter", "Params.hole7_diameter")
hole7.DepthType = "ThroughAll"
hole7.Reversed = True
body13 = doc.addObject("PartDesign::Body", "Body012")

sketch20 = body13.newObject("Sketcher::SketchObject", "Sketch019")
sketch20.AttachmentSupport = (doc.getObject("XY_Plane012"), [""])
sketch20.MapMode = "FlatFace"
sketch20.addGeometry([
    Part.LineSegment(V(-325, 85, 0), V(-325, 60, 0)),
    Part.LineSegment(V(-325, 60, 0), V(-145, 60, 0)),
    Part.LineSegment(V(-145, 60, 0), V(-145, 85, 0)),
    Part.LineSegment(V(-145, 85, 0), V(-325, 85, 0)),
], False)
sketch20.addConstraint([
    Sketcher.Constraint("Coincident", 0, 2, 1, 1),
    Sketcher.Constraint("Coincident", 1, 2, 2, 1),
    Sketcher.Constraint("Coincident", 2, 2, 3, 1),
    Sketcher.Constraint("Coincident", 3, 2, 0, 1),
    Sketcher.Constraint("Vertical", 0),
    Sketcher.Constraint("Horizontal", 1),
    Sketcher.Constraint("Vertical", 2),
    Sketcher.Constraint("Horizontal", 3),
    Sketcher.Constraint("DistanceX", 1, 1, 1, 2, Q("180 mm")),
    Sketcher.Constraint("DistanceY", 0, 2, 0, 1, Q("25.4 mm")),
    Sketcher.Constraint("DistanceY", -1, 1, 0, 2, Q("60 mm")),
    Sketcher.Constraint("DistanceX", 0, 2, -1, 1, Q("324.6 mm")),
])
sketch20.setExpression("Constraints[8]", "Params.sketch20_width")
sketch20.setExpression("Constraints[9]", "Params.sketch20_height")
pad13 = body13.newObject("PartDesign::Pad", "Pad012")
pad13.Profile = sketch20
pad13.setExpression("Length", "Params.pad13_length")
doc.recompute()

thickness6 = body13.newObject("PartDesign::Thickness", "Thickness005")
thickness6.Base = (pad13, faces_at(pad13, [(-324.6, 72.7, 12.7), (-144.6, 72.7, 12.7)]))
thickness6.setExpression("Value", "Params.thickness6_wall")
thickness6.Reversed = True
thickness6.Join = "Arc"

doc.recompute()
